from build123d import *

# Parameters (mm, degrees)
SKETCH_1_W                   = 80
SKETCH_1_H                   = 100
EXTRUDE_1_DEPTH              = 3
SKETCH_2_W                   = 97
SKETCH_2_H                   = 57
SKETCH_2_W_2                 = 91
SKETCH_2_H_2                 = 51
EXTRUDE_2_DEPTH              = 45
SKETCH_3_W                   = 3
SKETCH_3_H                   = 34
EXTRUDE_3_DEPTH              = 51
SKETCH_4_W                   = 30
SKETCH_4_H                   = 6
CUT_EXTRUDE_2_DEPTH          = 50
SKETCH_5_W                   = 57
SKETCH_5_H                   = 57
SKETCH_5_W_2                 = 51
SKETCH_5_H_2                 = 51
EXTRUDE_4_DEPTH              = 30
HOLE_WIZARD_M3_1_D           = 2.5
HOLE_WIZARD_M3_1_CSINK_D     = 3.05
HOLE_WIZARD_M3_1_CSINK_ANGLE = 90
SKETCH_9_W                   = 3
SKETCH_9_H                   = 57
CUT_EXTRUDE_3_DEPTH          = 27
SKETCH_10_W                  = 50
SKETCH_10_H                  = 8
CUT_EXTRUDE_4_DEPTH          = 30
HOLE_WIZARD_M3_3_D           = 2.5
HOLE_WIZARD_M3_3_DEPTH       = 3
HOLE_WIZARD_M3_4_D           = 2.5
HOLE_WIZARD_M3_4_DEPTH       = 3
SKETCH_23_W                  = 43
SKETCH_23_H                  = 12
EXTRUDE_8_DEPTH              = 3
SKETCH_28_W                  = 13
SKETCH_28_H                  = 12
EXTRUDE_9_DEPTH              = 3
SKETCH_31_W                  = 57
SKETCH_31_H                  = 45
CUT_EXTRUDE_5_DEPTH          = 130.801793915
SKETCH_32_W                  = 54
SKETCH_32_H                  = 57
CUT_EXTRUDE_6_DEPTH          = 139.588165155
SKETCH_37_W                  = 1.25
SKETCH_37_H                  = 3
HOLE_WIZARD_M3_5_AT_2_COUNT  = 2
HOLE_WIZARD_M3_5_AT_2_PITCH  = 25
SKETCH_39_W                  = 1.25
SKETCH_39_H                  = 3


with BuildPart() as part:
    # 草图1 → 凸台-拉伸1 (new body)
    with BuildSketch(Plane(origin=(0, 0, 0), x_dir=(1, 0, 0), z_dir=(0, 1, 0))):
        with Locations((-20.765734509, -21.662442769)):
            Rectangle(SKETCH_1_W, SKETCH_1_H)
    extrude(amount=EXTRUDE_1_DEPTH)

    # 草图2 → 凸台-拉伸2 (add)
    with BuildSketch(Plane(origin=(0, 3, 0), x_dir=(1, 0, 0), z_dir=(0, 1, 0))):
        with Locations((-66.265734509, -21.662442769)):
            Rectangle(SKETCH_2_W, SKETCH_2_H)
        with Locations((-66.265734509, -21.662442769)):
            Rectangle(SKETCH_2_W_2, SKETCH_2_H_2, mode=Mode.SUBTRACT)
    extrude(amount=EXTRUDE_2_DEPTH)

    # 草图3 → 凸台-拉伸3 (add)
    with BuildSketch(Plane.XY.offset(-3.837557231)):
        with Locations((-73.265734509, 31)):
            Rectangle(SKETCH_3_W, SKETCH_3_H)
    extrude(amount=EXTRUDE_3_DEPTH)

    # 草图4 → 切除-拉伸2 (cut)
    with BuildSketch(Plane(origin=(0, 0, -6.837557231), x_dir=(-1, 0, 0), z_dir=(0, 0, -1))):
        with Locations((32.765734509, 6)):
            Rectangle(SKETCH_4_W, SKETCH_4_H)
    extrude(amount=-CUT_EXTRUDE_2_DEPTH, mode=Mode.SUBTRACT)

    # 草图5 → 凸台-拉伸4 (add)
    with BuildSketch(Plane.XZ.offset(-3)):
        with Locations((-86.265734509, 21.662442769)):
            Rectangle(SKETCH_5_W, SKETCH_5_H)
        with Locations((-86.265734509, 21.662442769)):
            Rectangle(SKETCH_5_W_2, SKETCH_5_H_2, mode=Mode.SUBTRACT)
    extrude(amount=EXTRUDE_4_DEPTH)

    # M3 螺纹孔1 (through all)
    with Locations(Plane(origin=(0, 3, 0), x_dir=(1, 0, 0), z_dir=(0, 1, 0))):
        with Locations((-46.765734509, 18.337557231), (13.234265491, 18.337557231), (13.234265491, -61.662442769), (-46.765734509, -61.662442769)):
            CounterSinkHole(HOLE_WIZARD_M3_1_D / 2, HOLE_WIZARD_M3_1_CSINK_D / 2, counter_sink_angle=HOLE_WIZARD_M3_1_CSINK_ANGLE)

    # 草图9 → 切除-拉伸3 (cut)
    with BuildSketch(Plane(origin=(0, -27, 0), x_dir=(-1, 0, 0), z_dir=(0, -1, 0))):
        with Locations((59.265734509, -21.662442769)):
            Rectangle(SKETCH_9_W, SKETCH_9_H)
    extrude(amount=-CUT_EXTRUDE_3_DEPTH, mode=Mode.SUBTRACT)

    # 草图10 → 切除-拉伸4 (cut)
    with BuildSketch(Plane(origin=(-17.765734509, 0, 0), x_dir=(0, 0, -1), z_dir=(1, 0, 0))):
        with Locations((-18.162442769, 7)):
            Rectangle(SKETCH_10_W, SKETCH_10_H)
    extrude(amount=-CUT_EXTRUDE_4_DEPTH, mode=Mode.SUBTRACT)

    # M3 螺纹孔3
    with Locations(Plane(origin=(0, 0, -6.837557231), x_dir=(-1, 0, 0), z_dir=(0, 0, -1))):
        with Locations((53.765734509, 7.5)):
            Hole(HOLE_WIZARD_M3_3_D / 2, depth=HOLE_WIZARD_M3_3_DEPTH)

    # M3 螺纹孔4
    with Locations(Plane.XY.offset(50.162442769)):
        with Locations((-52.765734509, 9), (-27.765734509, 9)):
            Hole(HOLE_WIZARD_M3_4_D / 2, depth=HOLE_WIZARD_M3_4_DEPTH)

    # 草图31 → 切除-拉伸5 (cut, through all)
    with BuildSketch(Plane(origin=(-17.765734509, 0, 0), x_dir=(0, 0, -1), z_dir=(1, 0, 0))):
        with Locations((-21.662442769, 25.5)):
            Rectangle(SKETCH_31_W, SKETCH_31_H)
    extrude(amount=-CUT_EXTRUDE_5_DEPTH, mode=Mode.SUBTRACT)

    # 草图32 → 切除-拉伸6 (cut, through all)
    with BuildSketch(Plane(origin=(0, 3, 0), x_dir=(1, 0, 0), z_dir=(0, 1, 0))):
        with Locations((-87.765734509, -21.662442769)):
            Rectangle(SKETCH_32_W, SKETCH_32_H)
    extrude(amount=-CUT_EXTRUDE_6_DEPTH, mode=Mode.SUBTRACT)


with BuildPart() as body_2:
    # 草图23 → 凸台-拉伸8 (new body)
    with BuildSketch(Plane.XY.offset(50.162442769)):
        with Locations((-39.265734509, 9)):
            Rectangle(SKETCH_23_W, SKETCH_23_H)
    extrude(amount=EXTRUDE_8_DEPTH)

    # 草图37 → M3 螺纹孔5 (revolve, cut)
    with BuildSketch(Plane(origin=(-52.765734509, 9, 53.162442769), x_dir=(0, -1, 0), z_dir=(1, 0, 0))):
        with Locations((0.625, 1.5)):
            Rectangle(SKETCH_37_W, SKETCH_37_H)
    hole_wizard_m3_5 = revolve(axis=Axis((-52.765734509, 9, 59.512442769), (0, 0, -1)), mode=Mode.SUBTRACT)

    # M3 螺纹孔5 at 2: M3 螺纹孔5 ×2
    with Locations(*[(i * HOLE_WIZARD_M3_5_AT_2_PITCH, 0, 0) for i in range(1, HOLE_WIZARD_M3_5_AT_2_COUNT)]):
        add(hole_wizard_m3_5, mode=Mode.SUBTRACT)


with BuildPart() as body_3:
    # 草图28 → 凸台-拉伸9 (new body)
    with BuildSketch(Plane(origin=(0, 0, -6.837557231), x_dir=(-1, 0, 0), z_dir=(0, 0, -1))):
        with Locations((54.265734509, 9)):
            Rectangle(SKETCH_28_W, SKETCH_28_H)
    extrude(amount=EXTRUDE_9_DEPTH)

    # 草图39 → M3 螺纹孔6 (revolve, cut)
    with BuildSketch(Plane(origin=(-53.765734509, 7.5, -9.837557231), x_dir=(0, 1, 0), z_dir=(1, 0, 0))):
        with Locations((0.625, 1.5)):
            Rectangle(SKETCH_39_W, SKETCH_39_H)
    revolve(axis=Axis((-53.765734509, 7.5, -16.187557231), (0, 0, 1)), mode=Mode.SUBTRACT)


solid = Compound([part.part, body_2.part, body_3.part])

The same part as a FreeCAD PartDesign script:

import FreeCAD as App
import Part
import Sketcher


def add_polygon(sketch, points):
    """Adds a closed chain of lines whose ends are joined by coincident constraints."""
    first, n = sketch.GeometryCount, len(points)
    for a, b in zip(points, points[1:] + points[:1]):
        sketch.addGeometry(Part.LineSegment(App.Vector(*a, 0), App.Vector(*b, 0)), False)
    for i in range(n):
        sketch.addConstraint(Sketcher.Constraint("Coincident", first + i, 2, first + (i + 1) % n, 1))

doc = App.newDocument("Part")
body = doc.addObject("PartDesign::Body", "Body")

sketch1 = doc.addObject("Sketcher::SketchObject", "Sketch")
body.addObject(sketch1)
sketch1.AttachmentSupport = (doc.XZ_Plane, [""])
sketch1.MapMode = "FlatFace"
add_polygon(sketch1, [(-60.765735, -28.337557), (-60.765735, 71.662443), (19.234265, 71.662443), (19.234265, -28.337557)])
sketch1.addConstraint(Sketcher.Constraint("Vertical", 0))
sketch1.addConstraint(Sketcher.Constraint("Horizontal", 1))
sketch1.addConstraint(Sketcher.Constraint("Vertical", 2))
sketch1.addConstraint(Sketcher.Constraint("Horizontal", 3))
sketch1.addConstraint(Sketcher.Constraint("DistanceX", 1, 1, 1, 2, 80.0))
sketch1.addConstraint(Sketcher.Constraint("DistanceY", 0, 1, 0, 2, 100.0))
sketch1.addConstraint(Sketcher.Constraint("DistanceX", 0, 2, -1, 1, 60.765735))
sketch1.addConstraint(Sketcher.Constraint("DistanceY", -1, 1, 0, 2, 71.662443))
pad1 = doc.addObject("PartDesign::Pad", "Pad")
body.addObject(pad1)
pad1.Profile = sketch1
pad1.Length = 3
pad1.Reversed = True

sketch2 = doc.addObject("Sketcher::SketchObject", "Sketch001")
body.addObject(sketch2)
sketch2.AttachmentSupport = (doc.XZ_Plane, [""])
sketch2.MapMode = "FlatFace"
sketch2.AttachmentOffset = App.Placement(App.Vector(0, 0, -3), App.Rotation())
add_polygon(sketch2, [(-114.765735, -6.837557), (-114.765735, 50.162443), (-17.765735, 50.162443), (-17.765735, -6.837557)])
add_polygon(sketch2, [(-20.765735, 47.162443), (-111.765735, 47.162443), (-111.765735, -3.837557), (-20.765735, -3.837557)])
sketch2.addConstraint(Sketcher.Constraint("Vertical", 0))
sketch2.addConstraint(Sketcher.Constraint("Horizontal", 1))
sketch2.addConstraint(Sketcher.Constraint("Vertical", 2))
sketch2.addConstraint(Sketcher.Constraint("Horizontal", 3))
sketch2.addConstraint(Sketcher.Constraint("Horizontal", 4))
sketch2.addConstraint(Sketcher.Constraint("Vertical", 5))
sketch2.addConstraint(Sketcher.Constraint("Horizontal", 6))
sketch2.addConstraint(Sketcher.Constraint("Vertical", 7))
sketch2.addConstraint(Sketcher.Constraint("DistanceX", 1, 1, 1, 2, 97.0))
sketch2.addConstraint(Sketcher.Constraint("DistanceX", 4, 2, 4, 1, 91.0))
sketch2.addConstraint(Sketcher.Constraint("DistanceY", 0, 1, 0, 2, 57.0))
sketch2.addConstraint(Sketcher.Constraint("DistanceY", 5, 2, 5, 1, 51.0))
sketch2.addConstraint(Sketcher.Constraint("DistanceX", 0, 2, 4, 2, 3.0))
sketch2.addConstraint(Sketcher.Constraint("DistanceY", 4, 2, 0, 2, 3.0))
sketch2.addConstraint(Sketcher.Constraint("DistanceX", 0, 2, -1, 1, 114.765735))
sketch2.addConstraint(Sketcher.Constraint("DistanceY", -1, 1, 0, 2, 50.162443))
pad2 = doc.addObject("PartDesign::Pad", "Pad001")
body.addObject(pad2)
pad2.Profile = sketch2
pad2.Length = 45
pad2.Reversed = True

sketch3 = doc.addObject("Sketcher::SketchObject", "Sketch002")
body.addObject(sketch3)
sketch3.AttachmentSupport = (doc.XY_Plane, [""])
sketch3.MapMode = "FlatFace"
sketch3.AttachmentOffset = App.Placement(App.Vector(0, 0, -3.837557), App.Rotation())
add_polygon(sketch3, [(-74.765735, 48), (-74.765735, 14), (-71.765735, 14), (-71.765735, 48)])
sketch3.addConstraint(Sketcher.Constraint("Vertical", 0))
sketch3.addConstraint(Sketcher.Constraint("Horizontal", 1))
sketch3.addConstraint(Sketcher.Constraint("Vertical", 2))
sketch3.addConstraint(Sketcher.Constraint("Horizontal", 3))
sketch3.addConstraint(Sketcher.Constraint("DistanceX", 1, 1, 1, 2, 3.0))
sketch3.addConstraint(Sketcher.Constraint("DistanceY", 0, 2, 0, 1, 34.0))
sketch3.addConstraint(Sketcher.Constraint("DistanceY", -1, 1, 0, 2, 14.0))
sketch3.addConstraint(Sketcher.Constraint("DistanceX", 0, 2, -1, 1, 74.765735))
pad3 = doc.addObject("PartDesign::Pad", "Pad002")
body.addObject(pad3)
pad3.Profile = sketch3
pad3.Length = 51

sketch4 = doc.addObject("Sketcher::SketchObject", "Sketch003")
body.addObject(sketch4)
sketch4.AttachmentSupport = (doc.XY_Plane, [""])
sketch4.MapMode = "FlatFace"
sketch4.AttachmentOffset = App.Placement(App.Vector(0, 0, -6.837557), App.Rotation())
add_polygon(sketch4, [(-17.765735, 9), (-17.765735, 3), (-47.765735, 3), (-47.765735, 9)])
sketch4.addConstraint(Sketcher.Constraint("Vertical", 0))
sketch4.addConstraint(Sketcher.Constraint("Horizontal", 1))
sketch4.addConstraint(Sketcher.Constraint("Vertical", 2))
sketch4.addConstraint(Sketcher.Constraint("Horizontal", 3))
sketch4.addConstraint(Sketcher.Constraint("DistanceX", 1, 2, 1, 1, 30.0))
sketch4.addConstraint(Sketcher.Constraint("DistanceY", 0, 2, 0, 1, 6.0))
sketch4.addConstraint(Sketcher.Constraint("DistanceY", -1, 1, 0, 2, 3.0))
sketch4.addConstraint(Sketcher.Constraint("DistanceX", 0, 2, -1, 1, 17.765735))
pocket1 = doc.addObject("PartDesign::Pocket", "Pocket")
body.addObject(pocket1)
pocket1.Profile = sketch4
pocket1.Length = 50
pocket1.Reversed = True

sketch5 = doc.addObject("Sketcher::SketchObject", "Sketch004")
body.addObject(sketch5)
sketch5.AttachmentSupport = (doc.XZ_Plane, [""])
sketch5.MapMode = "FlatFace"
sketch5.AttachmentOffset = App.Placement(App.Vector(0, 0, -3), App.Rotation())
add_polygon(sketch5, [(-114.765735, 50.162443), (-114.765735, -6.837557), (-57.765735, -6.837557), (-57.765735, 50.162443)])
add_polygon(sketch5, [(-60.765735, -3.837557), (-111.765735, -3.837557), (-111.765735, 47.162443), (-60.765735, 47.162443)])
sketch5.addConstraint(Sketcher.Constraint("Vertical", 0))
sketch5.addConstraint(Sketcher.Constraint("Horizontal", 1))
sketch5.addConstraint(Sketcher.Constraint("Vertical", 2))
sketch5.addConstraint(Sketcher.Constraint("Horizontal", 3))
sketch5.addConstraint(Sketcher.Constraint("Horizontal", 4))
sketch5.addConstraint(Sketcher.Constraint("Vertical", 5))
sketch5.addConstraint(Sketcher.Constraint("Horizontal", 6))
sketch5.addConstraint(Sketcher.Constraint("Vertical", 7))
sketch5.addConstraint(Sketcher.Constraint("Equal", 3, 0))
sketch5.addConstraint(Sketcher.Constraint("Equal", 6, 5))
sketch5.addConstraint(Sketcher.Constraint("DistanceX", 1, 1, 1, 2, 57.0))
sketch5.addConstraint(Sketcher.Constraint("DistanceX", 4, 2, 4, 1, 51.0))
sketch5.addConstraint(Sketcher.Constraint("DistanceX", 0, 2, 4, 2, 3.0))
sketch5.addConstraint(Sketcher.Constraint("DistanceY", 0, 2, 4, 2, 3.0))
sketch5.addConstraint(Sketcher.Constraint("DistanceX", 0, 2, -1, 1, 114.765735))
sketch5.addConstraint(Sketcher.Constraint("DistanceY", 0, 2, -1, 1, 6.837557))
pad4 = doc.addObject("PartDesign::Pad", "Pad003")
body.addObject(pad4)
pad4.Profile = sketch5
pad4.Length = 30

sketch6 = doc.addObject("Sketcher::SketchObject", "Sketch005")
body.addObject(sketch6)
sketch6.AttachmentSupport = (doc.XZ_Plane, [""])
sketch6.MapMode = "FlatFace"
sketch6.AttachmentOffset = App.Placement(App.Vector(0, 0, -3), App.Rotation())
sketch6.addGeometry(Part.Circle(App.Vector(-46.765735, -18.337557, 0), App.Vector(0, 0, 1), 1.25), False)
sketch6.addGeometry(Part.Circle(App.Vector(13.234265, -18.337557, 0), App.Vector(0, 0, 1), 1.25), False)
sketch6.addGeometry(Part.Circle(App.Vector(13.234265, 61.662443, 0), App.Vector(0, 0, 1), 1.25), False)
sketch6.addGeometry(Part.Circle(App.Vector(-46.765735, 61.662443, 0), App.Vector(0, 0, 1), 1.25), False)
sketch6.addConstraint(Sketcher.Constraint("Equal", 0, 1))
sketch6.addConstraint(Sketcher.Constraint("Equal", 1, 2))
sketch6.addConstraint(Sketcher.Constraint("Equal", 2, 3))
sketch6.addConstraint(Sketcher.Constraint("Horizontal", 0, 3, 1, 3))
sketch6.addConstraint(Sketcher.Constraint("Horizontal", 2, 3, 3, 3))
sketch6.addConstraint(Sketcher.Constraint("Vertical", 1, 3, 2, 3))
sketch6.addConstraint(Sketcher.Constraint("Vertical", 0, 3, 3, 3))
sketch6.addConstraint(Sketcher.Constraint("Diameter", 0, 2.5))
sketch6.addConstraint(Sketcher.Constraint("DistanceX", 0, 3, 1, 3, 60.0))
sketch6.addConstraint(Sketcher.Constraint("DistanceY", 1, 3, 2, 3, 80.0))
sketch6.addConstraint(Sketcher.Constraint("DistanceX", 0, 3, -1, 1, 46.765735))
sketch6.addConstraint(Sketcher.Constraint("DistanceY", 0, 3, -1, 1, 18.337557))
doc.recompute()
hole = doc.addObject("PartDesign::Hole", "Hole")
body.addObject(hole)
hole.Profile = sketch6
hole.ThreadType = "None"
hole.Diameter = 2.5
hole.DepthType = "ThroughAll"
hole.HoleCutType = "Countersink"
hole.HoleCutDiameter = 3.05
hole.HoleCutCountersinkAngle = 90
hole.Reversed = True

sketch7 = doc.addObject("Sketcher::SketchObject", "Sketch006")
body.addObject(sketch7)
sketch7.AttachmentSupport = (doc.XZ_Plane, [""])
sketch7.MapMode = "FlatFace"
sketch7.AttachmentOffset = App.Placement(App.Vector(0, 0, 27), App.Rotation())
add_polygon(sketch7, [(-57.765735, -6.837557), (-57.765735, 50.162443), (-60.765735, 50.162443), (-60.765735, -6.837557)])
sketch7.addConstraint(Sketcher.Constraint("Vertical", 0))
sketch7.addConstraint(Sketcher.Constraint("Horizontal", 1))
sketch7.addConstraint(Sketcher.Constraint("Vertical", 2))
sketch7.addConstraint(Sketcher.Constraint("Horizontal", 3))
sketch7.addConstraint(Sketcher.Constraint("DistanceX", 1, 2, 1, 1, 3.0))
sketch7.addConstraint(Sketcher.Constraint("DistanceY", 0, 1, 0, 2, 57.0))
sketch7.addConstraint(Sketcher.Constraint("DistanceX", 0, 2, -1, 1, 57.765735))
sketch7.addConstraint(Sketcher.Constraint("DistanceY", -1, 1, 0, 2, 50.162443))
pocket2 = doc.addObject("PartDesign::Pocket", "Pocket001")
body.addObject(pocket2)
pocket2.Profile = sketch7
pocket2.Length = 27

sketch8 = doc.addObject("Sketcher::SketchObject", "Sketch007")
body.addObject(sketch8)
sketch8.AttachmentSupport = (doc.YZ_Plane, [""])
sketch8.MapMode = "FlatFace"
sketch8.AttachmentOffset = App.Placement(App.Vector(0, 0, -17.765735), App.Rotation())
add_polygon(sketch8, [(11, 43.162443), (3, 43.162443), (3, -6.837557), (11, -6.837557)])
sketch8.addConstraint(Sketcher.Constraint("Horizontal", 0))
sketch8.addConstraint(Sketcher.Constraint("Vertical", 1))
sketch8.addConstraint(Sketcher.Constraint("Horizontal", 2))
sketch8.addConstraint(Sketcher.Constraint("Vertical", 3))
sketch8.addConstraint(Sketcher.Constraint("DistanceX", 0, 2, 0, 1, 8.0))
sketch8.addConstraint(Sketcher.Constraint("DistanceY", 1, 2, 1, 1, 50.0))
sketch8.addConstraint(Sketcher.Constraint("DistanceX", -1, 1, 0, 2, 3.0))
sketch8.addConstraint(Sketcher.Constraint("DistanceY", -1, 1, 0, 2, 43.162443))
pocket3 = doc.addObject("PartDesign::Pocket", "Pocket002")
body.addObject(pocket3)
pocket3.Profile = sketch8
pocket3.Length = 30

sketch9 = doc.addObject("Sketcher::SketchObject", "Sketch008")
body.addObject(sketch9)
sketch9.AttachmentSupport = (doc.XY_Plane, [""])
sketch9.MapMode = "FlatFace"
sketch9.AttachmentOffset = App.Placement(App.Vector(0, 0, -6.837557), App.Rotation())
sketch9.addGeometry(Part.Circle(App.Vector(-53.765735, 7.5, 0), App.Vector(0, 0, 1), 1.25), False)
sketch9.addConstraint(Sketcher.Constraint("Diameter", 0, 2.5))
sketch9.addConstraint(Sketcher.Constraint("DistanceY", -1, 1, 0, 3, 7.5))
sketch9.addConstraint(Sketcher.Constraint("DistanceX", 0, 3, -1, 1, 53.765735))
doc.recompute()
hole2 = doc.addObject("PartDesign::Hole", "Hole001")
body.addObject(hole2)
hole2.Profile = sketch9
hole2.ThreadType = "None"
hole2.Diameter = 2.5
hole2.DepthType = "Dimension"
hole2.Depth = 3
hole2.DrillPoint = "Flat"
hole2.Reversed = True

sketch10 = doc.addObject("Sketcher::SketchObject", "Sketch009")
body.addObject(sketch10)
sketch10.AttachmentSupport = (doc.XY_Plane, [""])
sketch10.MapMode = "FlatFace"
sketch10.AttachmentOffset = App.Placement(App.Vector(0, 0, 50.162443), App.Rotation())
sketch10.addGeometry(Part.Circle(App.Vector(-52.765735, 9, 0), App.Vector(0, 0, 1), 1.25), False)
sketch10.addGeometry(Part.Circle(App.Vector(-27.765735, 9, 0), App.Vector(0, 0, 1), 1.25), False)
sketch10.addConstraint(Sketcher.Constraint("Equal", 0, 1))
sketch10.addConstraint(Sketcher.Constraint("Horizontal", 0, 3, 1, 3))
sketch10.addConstraint(Sketcher.Constraint("Diameter", 0, 2.5))
sketch10.addConstraint(Sketcher.Constraint("DistanceY", -1, 1, 0, 3, 9.0))
sketch10.addConstraint(Sketcher.Constraint("DistanceX", 0, 3, 1, 3, 25.0))
sketch10.addConstraint(Sketcher.Constraint("DistanceX", 0, 3, -1, 1, 52.765735))
doc.recompute()
hole3 = doc.addObject("PartDesign::Hole", "Hole002")
body.addObject(hole3)
hole3.Profile = sketch10
hole3.ThreadType = "None"
hole3.Diameter = 2.5
hole3.DepthType = "Dimension"
hole3.Depth = 3
hole3.DrillPoint = "Flat"

sketch11 = doc.addObject("Sketcher::SketchObject", "Sketch010")
body.addObject(sketch11)
sketch11.AttachmentSupport = (doc.YZ_Plane, [""])
sketch11.MapMode = "FlatFace"
sketch11.AttachmentOffset = App.Placement(App.Vector(0, 0, -17.765735), App.Rotation())
add_polygon(sketch11, [(48, 50.162443), (3, 50.162443), (3, -6.837557), (48, -6.837557)])
sketch11.addConstraint(Sketcher.Constraint("Horizontal", 0))
sketch11.addConstraint(Sketcher.Constraint("Vertical", 1))
sketch11.addConstraint(Sketcher.Constraint("Horizontal", 2))
sketch11.addConstraint(Sketcher.Constraint("Vertical", 3))
sketch11.addConstraint(Sketcher.Constraint("DistanceX", 0, 2, 0, 1, 45.0))
sketch11.addConstraint(Sketcher.Constraint("DistanceY", 1, 2, 1, 1, 57.0))
sketch11.addConstraint(Sketcher.Constraint("DistanceX", -1, 1, 0, 2, 3.0))
sketch11.addConstraint(Sketcher.Constraint("DistanceY", -1, 1, 0, 2, 50.162443))
pocket4 = doc.addObject("PartDesign::Pocket", "Pocket003")
body.addObject(pocket4)
pocket4.Profile = sketch11
pocket4.Type = "ThroughAll"

sketch12 = doc.addObject("Sketcher::SketchObject", "Sketch011")
body.addObject(sketch12)
sketch12.AttachmentSupport = (doc.XZ_Plane, [""])
sketch12.MapMode = "FlatFace"
sketch12.AttachmentOffset = App.Placement(App.Vector(0, 0, -3), App.Rotation())
add_polygon(sketch12, [(-114.765735, -6.837557), (-114.765735, 50.162443), (-60.765735, 50.162443), (-60.765735, -6.837557)])
sketch12.addConstraint(Sketcher.Constraint("Vertical", 0))
sketch12.addConstraint(Sketcher.Constraint("Horizontal", 1))
sketch12.addConstraint(Sketcher.Constraint("Vertical", 2))
sketch12.addConstraint(Sketcher.Constraint("Horizontal", 3))
sketch12.addConstraint(Sketcher.Constraint("DistanceX", 1, 1, 1, 2, 54.0))
sketch12.addConstraint(Sketcher.Constraint("DistanceY", 0, 1, 0, 2, 57.0))
sketch12.addConstraint(Sketcher.Constraint("DistanceX", 0, 2, -1, 1, 114.765735))
sketch12.addConstraint(Sketcher.Constraint("DistanceY", -1, 1, 0, 2, 50.162443))
pocket5 = doc.addObject("PartDesign::Pocket", "Pocket004")
body.addObject(pocket5)
pocket5.Profile = sketch12
pocket5.Type = "ThroughAll"
pocket5.Reversed = True
body2 = doc.addObject("PartDesign::Body", "Body001")

sketch13 = doc.addObject("Sketcher::SketchObject", "Sketch012")
body2.addObject(sketch13)
sketch13.AttachmentSupport = (doc.getObject("XY_Plane001"), [""])
sketch13.MapMode = "FlatFace"
sketch13.AttachmentOffset = App.Placement(App.Vector(0, 0, 50.162443), App.Rotation())
add_polygon(sketch13, [(-60.765735, 15), (-60.765735, 3), (-17.765735, 3), (-17.765735, 15)])
sketch13.addConstraint(Sketcher.Constraint("Vertical", 0))
sketch13.addConstraint(Sketcher.Constraint("Horizontal", 1))
sketch13.addConstraint(Sketcher.Constraint("Vertical", 2))
sketch13.addConstraint(Sketcher.Constraint("Horizontal", 3))
sketch13.addConstraint(Sketcher.Constraint("DistanceX", 1, 1, 1, 2, 43.0))
sketch13.addConstraint(Sketcher.Constraint("DistanceY", 0, 2, 0, 1, 12.0))
sketch13.addConstraint(Sketcher.Constraint("DistanceY", -1, 1, 0, 2, 3.0))
sketch13.addConstraint(Sketcher.Constraint("DistanceX", 0, 2, -1, 1, 60.765735))
pad5 = doc.addObject("PartDesign::Pad", "Pad004")
body2.addObject(pad5)
pad5.Profile = sketch13
pad5.Length = 3

sketch14 = doc.addObject("Sketcher::SketchObject", "Sketch013")
body2.addObject(sketch14)
sketch14.AttachmentSupport = (doc.getObject("YZ_Plane001"), [""])
sketch14.MapMode = "FlatFace"
sketch14.AttachmentOffset = App.Placement(App.Vector(0, 0, -52.765735), App.Rotation())
add_polygon(sketch14, [(9, 50.162443), (9, 53.162443), (7.75, 53.162443), (7.75, 50.162443)])
sketch14.addGeometry(Part.LineSegment(App.Vector(9, 53.162443, 0), App.Vector(9, 50.162443, 0)), True)
sketch14.addConstraint(Sketcher.Constraint("Vertical", 0))
sketch14.addConstraint(Sketcher.Constraint("Horizontal", 1))
sketch14.addConstraint(Sketcher.Constraint("Vertical", 2))
sketch14.addConstraint(Sketcher.Constraint("Horizontal", 3))
sketch14.addConstraint(Sketcher.Constraint("Vertical", 4))
sketch14.addConstraint(Sketcher.Constraint("Coincident", 4, 1, 0, 2))
sketch14.addConstraint(Sketcher.Constraint("Horizontal", 2, 2, 4, 2))
sketch14.addConstraint(Sketcher.Constraint("DistanceY", 0, 1, 0, 2, 3.0))
sketch14.addConstraint(Sketcher.Constraint("DistanceX", -1, 1, 0, 2, 9.0))
sketch14.addConstraint(Sketcher.Constraint("DistanceX", 1, 2, 1, 1, 1.25))
sketch14.addConstraint(Sketcher.Constraint("DistanceY", -1, 1, 0, 2, 53.162443))
groove = doc.addObject("PartDesign::Groove", "Groove")
body2.addObject(groove)
groove.Profile = sketch14
groove.ReferenceAxis = (sketch14, ["Axis0"])
groove.Angle = 360
doc.recompute()

linearpattern = doc.addObject("PartDesign::LinearPattern", "LinearPattern")
body2.addObject(linearpattern)
linearpattern.Originals = [groove]
linearpattern.Direction = (doc.getObject("X_Axis001"), [""])
linearpattern.Mode = "offset"
linearpattern.Offset = 25
linearpattern.Occurrences = 2
body2.Tip = linearpattern
body3 = doc.addObject("PartDesign::Body", "Body002")

sketch15 = doc.addObject("Sketcher::SketchObject", "Sketch014")
body3.addObject(sketch15)
sketch15.AttachmentSupport = (doc.getObject("XY_Plane002"), [""])
sketch15.MapMode = "FlatFace"
sketch15.AttachmentOffset = App.Placement(App.Vector(0, 0, -6.837557), App.Rotation())
add_polygon(sketch15, [(-47.765735, 15), (-47.765735, 3), (-60.765735, 3), (-60.765735, 15)])
sketch15.addConstraint(Sketcher.Constraint("Vertical", 0))
sketch15.addConstraint(Sketcher.Constraint("Horizontal", 1))
sketch15.addConstraint(Sketcher.Constraint("Vertical", 2))
sketch15.addConstraint(Sketcher.Constraint("Horizontal", 3))
sketch15.addConstraint(Sketcher.Constraint("DistanceX", 1, 2, 1, 1, 13.0))
sketch15.addConstraint(Sketcher.Constraint("DistanceY", 0, 2, 0, 1, 12.0))
sketch15.addConstraint(Sketcher.Constraint("DistanceY", -1, 1, 0, 2, 3.0))
sketch15.addConstraint(Sketcher.Constraint("DistanceX", 0, 2, -1, 1, 47.765735))
pad6 = doc.addObject("PartDesign::Pad", "Pad005")
body3.addObject(pad6)
pad6.Profile = sketch15
pad6.Length = 3
pad6.Reversed = True

sketch16 = doc.addObject("Sketcher::SketchObject", "Sketch015")
body3.addObject(sketch16)
sketch16.AttachmentSupport = (doc.getObject("YZ_Plane002"), [""])
sketch16.MapMode = "FlatFace"
sketch16.AttachmentOffset = App.Placement(App.Vector(0, 0, -53.765735), App.Rotation())
add_polygon(sketch16, [(7.5, -6.837557), (7.5, -9.837557), (8.75, -9.837557), (8.75, -6.837557)])
sketch16.addGeometry(Part.LineSegment(App.Vector(7.5, -9.837557, 0), App.Vector(7.5, -6.837557, 0)), True)
sketch16.addConstraint(Sketcher.Constraint("Vertical", 0))
sketch16.addConstraint(Sketcher.Constraint("Horizontal", 1))
sketch16.addConstraint(Sketcher.Constraint("Vertical", 2))
sketch16.addConstraint(Sketcher.Constraint("Horizontal", 3))
sketch16.addConstraint(Sketcher.Constraint("Vertical", 4))
sketch16.addConstraint(Sketcher.Constraint("Coincident", 4, 1, 0, 2))
sketch16.addConstraint(Sketcher.Constraint("Horizontal", 2, 2, 4, 2))
sketch16.addConstraint(Sketcher.Constraint("DistanceY", 0, 2, 0, 1, 3.0))
sketch16.addConstraint(Sketcher.Constraint("DistanceX", 1, 1, 1, 2, 1.25))
sketch16.addConstraint(Sketcher.Constraint("DistanceX", -1, 1, 0, 2, 7.5))
sketch16.addConstraint(Sketcher.Constraint("DistanceY", 0, 2, -1, 1, 9.837557))
groove2 = doc.addObject("PartDesign::Groove", "Groove001")
body3.addObject(groove2)
groove2.Profile = sketch16
groove2.ReferenceAxis = (sketch16, ["Axis0"])
groove2.Angle = 360

doc.recompute()
